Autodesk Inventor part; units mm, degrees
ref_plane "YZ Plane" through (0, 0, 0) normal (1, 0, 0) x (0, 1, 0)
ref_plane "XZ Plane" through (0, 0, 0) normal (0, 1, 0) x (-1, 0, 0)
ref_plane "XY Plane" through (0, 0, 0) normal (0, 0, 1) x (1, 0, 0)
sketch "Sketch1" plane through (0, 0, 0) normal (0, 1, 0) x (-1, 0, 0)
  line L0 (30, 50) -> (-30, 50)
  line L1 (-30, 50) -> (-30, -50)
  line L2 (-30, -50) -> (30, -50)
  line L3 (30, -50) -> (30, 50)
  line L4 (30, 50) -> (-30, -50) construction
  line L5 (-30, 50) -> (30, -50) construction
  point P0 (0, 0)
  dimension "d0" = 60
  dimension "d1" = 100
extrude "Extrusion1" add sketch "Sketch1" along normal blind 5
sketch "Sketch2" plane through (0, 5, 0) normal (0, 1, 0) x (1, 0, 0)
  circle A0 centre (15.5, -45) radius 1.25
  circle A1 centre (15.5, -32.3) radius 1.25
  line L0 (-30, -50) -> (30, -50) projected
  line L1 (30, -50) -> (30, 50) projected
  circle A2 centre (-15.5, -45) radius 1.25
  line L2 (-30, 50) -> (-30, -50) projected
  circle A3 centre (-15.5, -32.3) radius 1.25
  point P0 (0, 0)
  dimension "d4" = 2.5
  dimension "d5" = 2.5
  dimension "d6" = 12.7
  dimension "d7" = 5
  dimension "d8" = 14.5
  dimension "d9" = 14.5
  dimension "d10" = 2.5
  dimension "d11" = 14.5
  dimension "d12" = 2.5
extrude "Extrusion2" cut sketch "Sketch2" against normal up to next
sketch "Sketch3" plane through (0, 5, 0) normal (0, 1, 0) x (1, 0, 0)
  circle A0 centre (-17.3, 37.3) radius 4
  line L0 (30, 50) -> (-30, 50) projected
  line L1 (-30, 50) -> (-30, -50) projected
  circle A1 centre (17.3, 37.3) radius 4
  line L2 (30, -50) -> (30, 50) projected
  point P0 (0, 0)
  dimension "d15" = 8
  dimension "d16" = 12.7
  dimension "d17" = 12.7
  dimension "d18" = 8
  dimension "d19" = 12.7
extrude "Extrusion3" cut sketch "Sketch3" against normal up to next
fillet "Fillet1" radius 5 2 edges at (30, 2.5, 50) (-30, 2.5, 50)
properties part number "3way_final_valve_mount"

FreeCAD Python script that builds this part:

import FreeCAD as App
import Part
import Sketcher


def edges_at(feature, points):
    """Names of the edges that pass closest to the given points."""
    edges = feature.Shape.Edges
    near = lambda p: min(range(len(edges)), key=lambda i: edges[i].distToShape(Part.Vertex(*p))[0])
    return sorted({f"Edge{near(p) + 1}" for p in points})


def add_polygon(sketch, points):
    """Adds a closed chain of lines whose ends are joined by coincident constraints."""
    first, n = sketch.GeometryCount, len(points)
    for a, b in zip(points, points[1:] + points[:1]):
        sketch.addGeometry(Part.LineSegment(App.Vector(*a, 0), App.Vector(*b, 0)), False)
    for i in range(n):
        sketch.addConstraint(Sketcher.Constraint("Coincident", first + i, 2, first + (i + 1) % n, 1))

doc = App.newDocument("Part")
params = doc.addObject("Spreadsheet::Sheet", "Params")
for row, (alias, value) in enumerate([
    ("sketch1_width", "60 mm"),
    ("sketch1_height", "100 mm"),
    ("pad1_length", "5 mm"),
    ("sketch2_diameter", "2.5 mm"),
    ("sketch3_diameter", "8 mm"),
    ("fillet_radius", "5 mm"),
], start=1):
    params.set(f"A{row}", alias)
    params.set(f"B{row}", "=" + value)
    params.setAlias(f"B{row}", alias)

body = doc.addObject("PartDesign::Body", "Body")

# Sketch on XZ plane
sketch1 = body.newObject("Sketcher::SketchObject", "Sketch")
sketch1.AttachmentSupport = (doc.getObject("XZ_Plane"), [""])
sketch1.MapMode = "FlatFace"
add_polygon(sketch1, [(-30, -50), (-30, 50), (30, 50), (30, -50)])  # lines 0-3
sketch1.addConstraint([
    Sketcher.Constraint("Vertical", 0),
    Sketcher.Constraint("Horizontal", 1),
    Sketcher.Constraint("Vertical", 2),
    Sketcher.Constraint("Horizontal", 3),
    Sketcher.Constraint("Symmetric", 0, 2, 2, 2, -1, 1),
    Sketcher.Constraint("DistanceX", 1, 1, 1, 2, 60.0),
    Sketcher.Constraint("DistanceY", 0, 1, 0, 2, 100.0),
])
sketch1.setExpression("Constraints[9]", "Params.sketch1_width")
sketch1.setExpression("Constraints[10]", "Params.sketch1_height")
pad1 = body.newObject("PartDesign::Pad", "Pad")
pad1.Profile = sketch1
pad1.setExpression("Length", "Params.pad1_length")
pad1.Reversed = True

# Sketch on XZ plane
sketch2 = body.newObject("Sketcher::SketchObject", "Sketch001")
sketch2.AttachmentSupport = (doc.getObject("XZ_Plane"), [""])
sketch2.MapMode = "FlatFace"
sketch2.AttachmentOffset = App.Placement(App.Vector(0, 0, -5), App.Rotation())
sketch2.addGeometry([
    Part.Circle(App.Vector(15.5, 45, 0), App.Vector(0, 0, 1), 1.2),
    Part.Circle(App.Vector(15.5, 32.3, 0), App.Vector(0, 0, 1), 1.2),
    Part.Circle(App.Vector(-15.5, 45, 0), App.Vector(0, 0, 1), 1.2),
    Part.Circle(App.Vector(-15.5, 32.3, 0), App.Vector(0, 0, 1), 1.2),
], False)
sketch2.addConstraint([
    Sketcher.Constraint("Equal", 0, 1),
    Sketcher.Constraint("Equal", 1, 2),
    Sketcher.Constraint("Equal", 2, 3),
    Sketcher.Constraint("Symmetric", 0, 3, 2, 3, -2),
    Sketcher.Constraint("Symmetric", 1, 3, 3, 3, -2),
    Sketcher.Constraint("Vertical", 0, 3, 1, 3),
    Sketcher.Constraint("Diameter", 0, 2.5),
    Sketcher.Constraint("DistanceY", 1, 3, 0, 3, 12.7),
    Sketcher.Constraint("DistanceY", -1, 1, 0, 3, 45.0),
    Sketcher.Constraint("DistanceX", 2, 3, 0, 3, 31.0),
])
sketch2.setExpression("Constraints[6]", "Params.sketch2_diameter")
pocket1 = body.newObject("PartDesign::Pocket", "Pocket")
pocket1.Profile = sketch2
pocket1.Type = "UpToFirst"
pocket1.Reversed = True

# Sketch on XZ plane
sketch3 = body.newObject("Sketcher::SketchObject", "Sketch002")
sketch3.AttachmentSupport = (doc.getObject("XZ_Plane"), [""])
sketch3.MapMode = "FlatFace"
sketch3.AttachmentOffset = App.Placement(App.Vector(0, 0, -5), App.Rotation())
sketch3.addGeometry([
    Part.Circle(App.Vector(-17.3, -37.3, 0), App.Vector(0, 0, 1), 4),
    Part.Circle(App.Vector(17.3, -37.3, 0), App.Vector(0, 0, 1), 4),
], False)
sketch3.addConstraint([
    Sketcher.Constraint("Equal", 0, 1),
    Sketcher.Constraint("Symmetric", 0, 3, 1, 3, -2),
    Sketcher.Constraint("Diameter", 0, 8.0),
    Sketcher.Constraint("DistanceX", 0, 3, -1, 1, 17.3),
    Sketcher.Constraint("DistanceY", 0, 3, -1, 1, 37.3),
])
sketch3.setExpression("Constraints[2]", "Params.sketch3_diameter")
pocket2 = body.newObject("PartDesign::Pocket", "Pocket001")
pocket2.Profile = sketch3
pocket2.Type = "UpToFirst"
pocket2.Reversed = True
doc.recompute()

fillet = body.newObject("PartDesign::Fillet", "Fillet")
fillet.Base = (pocket2, edges_at(pocket2, [(30, 2.5, 50), (-30, 2.5, 50)]))
fillet.setExpression("Radius", "Params.fillet_radius")

doc.recompute()
